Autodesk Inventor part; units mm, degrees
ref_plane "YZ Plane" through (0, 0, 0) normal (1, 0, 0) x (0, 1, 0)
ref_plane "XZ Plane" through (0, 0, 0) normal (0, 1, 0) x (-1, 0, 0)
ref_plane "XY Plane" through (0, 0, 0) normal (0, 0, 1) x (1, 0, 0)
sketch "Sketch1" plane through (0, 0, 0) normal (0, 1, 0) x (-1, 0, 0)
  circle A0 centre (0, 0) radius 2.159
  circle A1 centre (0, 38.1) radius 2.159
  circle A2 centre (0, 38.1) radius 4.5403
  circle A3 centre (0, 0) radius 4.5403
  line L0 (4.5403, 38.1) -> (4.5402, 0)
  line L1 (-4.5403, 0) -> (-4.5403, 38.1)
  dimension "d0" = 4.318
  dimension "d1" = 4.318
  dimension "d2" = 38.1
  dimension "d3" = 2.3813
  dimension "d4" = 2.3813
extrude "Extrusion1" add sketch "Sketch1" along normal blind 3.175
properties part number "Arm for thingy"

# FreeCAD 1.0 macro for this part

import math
import FreeCAD as App
import Part
import Sketcher

V = App.Vector
Q = App.Units.Quantity

doc = App.newDocument("Part")
body = doc.addObject("PartDesign::Body", "Body")

sketch1 = body.newObject("Sketcher::SketchObject", "Sketch")
sketch1.AttachmentSupport = (doc.getObject("XZ_Plane"), [""])
sketch1.MapMode = "FlatFace"
sketch1.addGeometry(Part.ArcOfCircle(Part.Circle(V(0, 38.1, 0), V(0, 0, 1), 4.5), math.radians(0), math.radians(180)), False)
sketch1.addGeometry(Part.LineSegment(V(4.5, 38.1, 0), V(4.5, 0, 0)), False)
sketch1.addGeometry(Part.ArcOfCircle(Part.Circle(V(0, 0, 0), V(0, 0, 1), 4.5), math.radians(180), math.radians(360)), False)
sketch1.addGeometry(Part.LineSegment(V(-4.5, 0, 0), V(-4.5, 38.1, 0)), False)
sketch1.addGeometry(Part.Circle(V(0, 38.1, 0), V(0, 0, 1), 2.2), False)
sketch1.addGeometry(Part.Circle(V(0, 0, 0), V(0, 0, 1), 2.2), False)
sketch1.addConstraint(Sketcher.Constraint("Tangent", 0, 1, 1, 1))
sketch1.addConstraint(Sketcher.Constraint("Tangent", 1, 2, 2, 2))
sketch1.addConstraint(Sketcher.Constraint("Tangent", 2, 1, 3, 1))
sketch1.addConstraint(Sketcher.Constraint("Tangent", 3, 2, 0, 2))
sketch1.addConstraint(Sketcher.Constraint("Vertical", 1))
sketch1.addConstraint(Sketcher.Constraint("Vertical", 3))
sketch1.addConstraint(Sketcher.Constraint("Coincident", 2, 3, -1, 1))
sketch1.addConstraint(Sketcher.Constraint("Coincident", 5, 3, -1, 1))
sketch1.addConstraint(Sketcher.Constraint("Coincident", 4, 3, 0, 3))
sketch1.addConstraint(Sketcher.Constraint("Equal", 4, 5))
sketch1.addConstraint(Sketcher.Constraint("Diameter", 4, Q("0.17 in")))
sketch1.addConstraint(Sketcher.Constraint("DistanceY", 1, 2, 1, 1, Q("1.5 in")))
sketch1.addConstraint(Sketcher.Constraint("Radius", 0, 4.5403))
pad1 = body.newObject("PartDesign::Pad", "Pad")
pad1.Profile = sketch1
pad1.Length = Q("0.125 in")
pad1.Reversed = True

doc.recompute()
